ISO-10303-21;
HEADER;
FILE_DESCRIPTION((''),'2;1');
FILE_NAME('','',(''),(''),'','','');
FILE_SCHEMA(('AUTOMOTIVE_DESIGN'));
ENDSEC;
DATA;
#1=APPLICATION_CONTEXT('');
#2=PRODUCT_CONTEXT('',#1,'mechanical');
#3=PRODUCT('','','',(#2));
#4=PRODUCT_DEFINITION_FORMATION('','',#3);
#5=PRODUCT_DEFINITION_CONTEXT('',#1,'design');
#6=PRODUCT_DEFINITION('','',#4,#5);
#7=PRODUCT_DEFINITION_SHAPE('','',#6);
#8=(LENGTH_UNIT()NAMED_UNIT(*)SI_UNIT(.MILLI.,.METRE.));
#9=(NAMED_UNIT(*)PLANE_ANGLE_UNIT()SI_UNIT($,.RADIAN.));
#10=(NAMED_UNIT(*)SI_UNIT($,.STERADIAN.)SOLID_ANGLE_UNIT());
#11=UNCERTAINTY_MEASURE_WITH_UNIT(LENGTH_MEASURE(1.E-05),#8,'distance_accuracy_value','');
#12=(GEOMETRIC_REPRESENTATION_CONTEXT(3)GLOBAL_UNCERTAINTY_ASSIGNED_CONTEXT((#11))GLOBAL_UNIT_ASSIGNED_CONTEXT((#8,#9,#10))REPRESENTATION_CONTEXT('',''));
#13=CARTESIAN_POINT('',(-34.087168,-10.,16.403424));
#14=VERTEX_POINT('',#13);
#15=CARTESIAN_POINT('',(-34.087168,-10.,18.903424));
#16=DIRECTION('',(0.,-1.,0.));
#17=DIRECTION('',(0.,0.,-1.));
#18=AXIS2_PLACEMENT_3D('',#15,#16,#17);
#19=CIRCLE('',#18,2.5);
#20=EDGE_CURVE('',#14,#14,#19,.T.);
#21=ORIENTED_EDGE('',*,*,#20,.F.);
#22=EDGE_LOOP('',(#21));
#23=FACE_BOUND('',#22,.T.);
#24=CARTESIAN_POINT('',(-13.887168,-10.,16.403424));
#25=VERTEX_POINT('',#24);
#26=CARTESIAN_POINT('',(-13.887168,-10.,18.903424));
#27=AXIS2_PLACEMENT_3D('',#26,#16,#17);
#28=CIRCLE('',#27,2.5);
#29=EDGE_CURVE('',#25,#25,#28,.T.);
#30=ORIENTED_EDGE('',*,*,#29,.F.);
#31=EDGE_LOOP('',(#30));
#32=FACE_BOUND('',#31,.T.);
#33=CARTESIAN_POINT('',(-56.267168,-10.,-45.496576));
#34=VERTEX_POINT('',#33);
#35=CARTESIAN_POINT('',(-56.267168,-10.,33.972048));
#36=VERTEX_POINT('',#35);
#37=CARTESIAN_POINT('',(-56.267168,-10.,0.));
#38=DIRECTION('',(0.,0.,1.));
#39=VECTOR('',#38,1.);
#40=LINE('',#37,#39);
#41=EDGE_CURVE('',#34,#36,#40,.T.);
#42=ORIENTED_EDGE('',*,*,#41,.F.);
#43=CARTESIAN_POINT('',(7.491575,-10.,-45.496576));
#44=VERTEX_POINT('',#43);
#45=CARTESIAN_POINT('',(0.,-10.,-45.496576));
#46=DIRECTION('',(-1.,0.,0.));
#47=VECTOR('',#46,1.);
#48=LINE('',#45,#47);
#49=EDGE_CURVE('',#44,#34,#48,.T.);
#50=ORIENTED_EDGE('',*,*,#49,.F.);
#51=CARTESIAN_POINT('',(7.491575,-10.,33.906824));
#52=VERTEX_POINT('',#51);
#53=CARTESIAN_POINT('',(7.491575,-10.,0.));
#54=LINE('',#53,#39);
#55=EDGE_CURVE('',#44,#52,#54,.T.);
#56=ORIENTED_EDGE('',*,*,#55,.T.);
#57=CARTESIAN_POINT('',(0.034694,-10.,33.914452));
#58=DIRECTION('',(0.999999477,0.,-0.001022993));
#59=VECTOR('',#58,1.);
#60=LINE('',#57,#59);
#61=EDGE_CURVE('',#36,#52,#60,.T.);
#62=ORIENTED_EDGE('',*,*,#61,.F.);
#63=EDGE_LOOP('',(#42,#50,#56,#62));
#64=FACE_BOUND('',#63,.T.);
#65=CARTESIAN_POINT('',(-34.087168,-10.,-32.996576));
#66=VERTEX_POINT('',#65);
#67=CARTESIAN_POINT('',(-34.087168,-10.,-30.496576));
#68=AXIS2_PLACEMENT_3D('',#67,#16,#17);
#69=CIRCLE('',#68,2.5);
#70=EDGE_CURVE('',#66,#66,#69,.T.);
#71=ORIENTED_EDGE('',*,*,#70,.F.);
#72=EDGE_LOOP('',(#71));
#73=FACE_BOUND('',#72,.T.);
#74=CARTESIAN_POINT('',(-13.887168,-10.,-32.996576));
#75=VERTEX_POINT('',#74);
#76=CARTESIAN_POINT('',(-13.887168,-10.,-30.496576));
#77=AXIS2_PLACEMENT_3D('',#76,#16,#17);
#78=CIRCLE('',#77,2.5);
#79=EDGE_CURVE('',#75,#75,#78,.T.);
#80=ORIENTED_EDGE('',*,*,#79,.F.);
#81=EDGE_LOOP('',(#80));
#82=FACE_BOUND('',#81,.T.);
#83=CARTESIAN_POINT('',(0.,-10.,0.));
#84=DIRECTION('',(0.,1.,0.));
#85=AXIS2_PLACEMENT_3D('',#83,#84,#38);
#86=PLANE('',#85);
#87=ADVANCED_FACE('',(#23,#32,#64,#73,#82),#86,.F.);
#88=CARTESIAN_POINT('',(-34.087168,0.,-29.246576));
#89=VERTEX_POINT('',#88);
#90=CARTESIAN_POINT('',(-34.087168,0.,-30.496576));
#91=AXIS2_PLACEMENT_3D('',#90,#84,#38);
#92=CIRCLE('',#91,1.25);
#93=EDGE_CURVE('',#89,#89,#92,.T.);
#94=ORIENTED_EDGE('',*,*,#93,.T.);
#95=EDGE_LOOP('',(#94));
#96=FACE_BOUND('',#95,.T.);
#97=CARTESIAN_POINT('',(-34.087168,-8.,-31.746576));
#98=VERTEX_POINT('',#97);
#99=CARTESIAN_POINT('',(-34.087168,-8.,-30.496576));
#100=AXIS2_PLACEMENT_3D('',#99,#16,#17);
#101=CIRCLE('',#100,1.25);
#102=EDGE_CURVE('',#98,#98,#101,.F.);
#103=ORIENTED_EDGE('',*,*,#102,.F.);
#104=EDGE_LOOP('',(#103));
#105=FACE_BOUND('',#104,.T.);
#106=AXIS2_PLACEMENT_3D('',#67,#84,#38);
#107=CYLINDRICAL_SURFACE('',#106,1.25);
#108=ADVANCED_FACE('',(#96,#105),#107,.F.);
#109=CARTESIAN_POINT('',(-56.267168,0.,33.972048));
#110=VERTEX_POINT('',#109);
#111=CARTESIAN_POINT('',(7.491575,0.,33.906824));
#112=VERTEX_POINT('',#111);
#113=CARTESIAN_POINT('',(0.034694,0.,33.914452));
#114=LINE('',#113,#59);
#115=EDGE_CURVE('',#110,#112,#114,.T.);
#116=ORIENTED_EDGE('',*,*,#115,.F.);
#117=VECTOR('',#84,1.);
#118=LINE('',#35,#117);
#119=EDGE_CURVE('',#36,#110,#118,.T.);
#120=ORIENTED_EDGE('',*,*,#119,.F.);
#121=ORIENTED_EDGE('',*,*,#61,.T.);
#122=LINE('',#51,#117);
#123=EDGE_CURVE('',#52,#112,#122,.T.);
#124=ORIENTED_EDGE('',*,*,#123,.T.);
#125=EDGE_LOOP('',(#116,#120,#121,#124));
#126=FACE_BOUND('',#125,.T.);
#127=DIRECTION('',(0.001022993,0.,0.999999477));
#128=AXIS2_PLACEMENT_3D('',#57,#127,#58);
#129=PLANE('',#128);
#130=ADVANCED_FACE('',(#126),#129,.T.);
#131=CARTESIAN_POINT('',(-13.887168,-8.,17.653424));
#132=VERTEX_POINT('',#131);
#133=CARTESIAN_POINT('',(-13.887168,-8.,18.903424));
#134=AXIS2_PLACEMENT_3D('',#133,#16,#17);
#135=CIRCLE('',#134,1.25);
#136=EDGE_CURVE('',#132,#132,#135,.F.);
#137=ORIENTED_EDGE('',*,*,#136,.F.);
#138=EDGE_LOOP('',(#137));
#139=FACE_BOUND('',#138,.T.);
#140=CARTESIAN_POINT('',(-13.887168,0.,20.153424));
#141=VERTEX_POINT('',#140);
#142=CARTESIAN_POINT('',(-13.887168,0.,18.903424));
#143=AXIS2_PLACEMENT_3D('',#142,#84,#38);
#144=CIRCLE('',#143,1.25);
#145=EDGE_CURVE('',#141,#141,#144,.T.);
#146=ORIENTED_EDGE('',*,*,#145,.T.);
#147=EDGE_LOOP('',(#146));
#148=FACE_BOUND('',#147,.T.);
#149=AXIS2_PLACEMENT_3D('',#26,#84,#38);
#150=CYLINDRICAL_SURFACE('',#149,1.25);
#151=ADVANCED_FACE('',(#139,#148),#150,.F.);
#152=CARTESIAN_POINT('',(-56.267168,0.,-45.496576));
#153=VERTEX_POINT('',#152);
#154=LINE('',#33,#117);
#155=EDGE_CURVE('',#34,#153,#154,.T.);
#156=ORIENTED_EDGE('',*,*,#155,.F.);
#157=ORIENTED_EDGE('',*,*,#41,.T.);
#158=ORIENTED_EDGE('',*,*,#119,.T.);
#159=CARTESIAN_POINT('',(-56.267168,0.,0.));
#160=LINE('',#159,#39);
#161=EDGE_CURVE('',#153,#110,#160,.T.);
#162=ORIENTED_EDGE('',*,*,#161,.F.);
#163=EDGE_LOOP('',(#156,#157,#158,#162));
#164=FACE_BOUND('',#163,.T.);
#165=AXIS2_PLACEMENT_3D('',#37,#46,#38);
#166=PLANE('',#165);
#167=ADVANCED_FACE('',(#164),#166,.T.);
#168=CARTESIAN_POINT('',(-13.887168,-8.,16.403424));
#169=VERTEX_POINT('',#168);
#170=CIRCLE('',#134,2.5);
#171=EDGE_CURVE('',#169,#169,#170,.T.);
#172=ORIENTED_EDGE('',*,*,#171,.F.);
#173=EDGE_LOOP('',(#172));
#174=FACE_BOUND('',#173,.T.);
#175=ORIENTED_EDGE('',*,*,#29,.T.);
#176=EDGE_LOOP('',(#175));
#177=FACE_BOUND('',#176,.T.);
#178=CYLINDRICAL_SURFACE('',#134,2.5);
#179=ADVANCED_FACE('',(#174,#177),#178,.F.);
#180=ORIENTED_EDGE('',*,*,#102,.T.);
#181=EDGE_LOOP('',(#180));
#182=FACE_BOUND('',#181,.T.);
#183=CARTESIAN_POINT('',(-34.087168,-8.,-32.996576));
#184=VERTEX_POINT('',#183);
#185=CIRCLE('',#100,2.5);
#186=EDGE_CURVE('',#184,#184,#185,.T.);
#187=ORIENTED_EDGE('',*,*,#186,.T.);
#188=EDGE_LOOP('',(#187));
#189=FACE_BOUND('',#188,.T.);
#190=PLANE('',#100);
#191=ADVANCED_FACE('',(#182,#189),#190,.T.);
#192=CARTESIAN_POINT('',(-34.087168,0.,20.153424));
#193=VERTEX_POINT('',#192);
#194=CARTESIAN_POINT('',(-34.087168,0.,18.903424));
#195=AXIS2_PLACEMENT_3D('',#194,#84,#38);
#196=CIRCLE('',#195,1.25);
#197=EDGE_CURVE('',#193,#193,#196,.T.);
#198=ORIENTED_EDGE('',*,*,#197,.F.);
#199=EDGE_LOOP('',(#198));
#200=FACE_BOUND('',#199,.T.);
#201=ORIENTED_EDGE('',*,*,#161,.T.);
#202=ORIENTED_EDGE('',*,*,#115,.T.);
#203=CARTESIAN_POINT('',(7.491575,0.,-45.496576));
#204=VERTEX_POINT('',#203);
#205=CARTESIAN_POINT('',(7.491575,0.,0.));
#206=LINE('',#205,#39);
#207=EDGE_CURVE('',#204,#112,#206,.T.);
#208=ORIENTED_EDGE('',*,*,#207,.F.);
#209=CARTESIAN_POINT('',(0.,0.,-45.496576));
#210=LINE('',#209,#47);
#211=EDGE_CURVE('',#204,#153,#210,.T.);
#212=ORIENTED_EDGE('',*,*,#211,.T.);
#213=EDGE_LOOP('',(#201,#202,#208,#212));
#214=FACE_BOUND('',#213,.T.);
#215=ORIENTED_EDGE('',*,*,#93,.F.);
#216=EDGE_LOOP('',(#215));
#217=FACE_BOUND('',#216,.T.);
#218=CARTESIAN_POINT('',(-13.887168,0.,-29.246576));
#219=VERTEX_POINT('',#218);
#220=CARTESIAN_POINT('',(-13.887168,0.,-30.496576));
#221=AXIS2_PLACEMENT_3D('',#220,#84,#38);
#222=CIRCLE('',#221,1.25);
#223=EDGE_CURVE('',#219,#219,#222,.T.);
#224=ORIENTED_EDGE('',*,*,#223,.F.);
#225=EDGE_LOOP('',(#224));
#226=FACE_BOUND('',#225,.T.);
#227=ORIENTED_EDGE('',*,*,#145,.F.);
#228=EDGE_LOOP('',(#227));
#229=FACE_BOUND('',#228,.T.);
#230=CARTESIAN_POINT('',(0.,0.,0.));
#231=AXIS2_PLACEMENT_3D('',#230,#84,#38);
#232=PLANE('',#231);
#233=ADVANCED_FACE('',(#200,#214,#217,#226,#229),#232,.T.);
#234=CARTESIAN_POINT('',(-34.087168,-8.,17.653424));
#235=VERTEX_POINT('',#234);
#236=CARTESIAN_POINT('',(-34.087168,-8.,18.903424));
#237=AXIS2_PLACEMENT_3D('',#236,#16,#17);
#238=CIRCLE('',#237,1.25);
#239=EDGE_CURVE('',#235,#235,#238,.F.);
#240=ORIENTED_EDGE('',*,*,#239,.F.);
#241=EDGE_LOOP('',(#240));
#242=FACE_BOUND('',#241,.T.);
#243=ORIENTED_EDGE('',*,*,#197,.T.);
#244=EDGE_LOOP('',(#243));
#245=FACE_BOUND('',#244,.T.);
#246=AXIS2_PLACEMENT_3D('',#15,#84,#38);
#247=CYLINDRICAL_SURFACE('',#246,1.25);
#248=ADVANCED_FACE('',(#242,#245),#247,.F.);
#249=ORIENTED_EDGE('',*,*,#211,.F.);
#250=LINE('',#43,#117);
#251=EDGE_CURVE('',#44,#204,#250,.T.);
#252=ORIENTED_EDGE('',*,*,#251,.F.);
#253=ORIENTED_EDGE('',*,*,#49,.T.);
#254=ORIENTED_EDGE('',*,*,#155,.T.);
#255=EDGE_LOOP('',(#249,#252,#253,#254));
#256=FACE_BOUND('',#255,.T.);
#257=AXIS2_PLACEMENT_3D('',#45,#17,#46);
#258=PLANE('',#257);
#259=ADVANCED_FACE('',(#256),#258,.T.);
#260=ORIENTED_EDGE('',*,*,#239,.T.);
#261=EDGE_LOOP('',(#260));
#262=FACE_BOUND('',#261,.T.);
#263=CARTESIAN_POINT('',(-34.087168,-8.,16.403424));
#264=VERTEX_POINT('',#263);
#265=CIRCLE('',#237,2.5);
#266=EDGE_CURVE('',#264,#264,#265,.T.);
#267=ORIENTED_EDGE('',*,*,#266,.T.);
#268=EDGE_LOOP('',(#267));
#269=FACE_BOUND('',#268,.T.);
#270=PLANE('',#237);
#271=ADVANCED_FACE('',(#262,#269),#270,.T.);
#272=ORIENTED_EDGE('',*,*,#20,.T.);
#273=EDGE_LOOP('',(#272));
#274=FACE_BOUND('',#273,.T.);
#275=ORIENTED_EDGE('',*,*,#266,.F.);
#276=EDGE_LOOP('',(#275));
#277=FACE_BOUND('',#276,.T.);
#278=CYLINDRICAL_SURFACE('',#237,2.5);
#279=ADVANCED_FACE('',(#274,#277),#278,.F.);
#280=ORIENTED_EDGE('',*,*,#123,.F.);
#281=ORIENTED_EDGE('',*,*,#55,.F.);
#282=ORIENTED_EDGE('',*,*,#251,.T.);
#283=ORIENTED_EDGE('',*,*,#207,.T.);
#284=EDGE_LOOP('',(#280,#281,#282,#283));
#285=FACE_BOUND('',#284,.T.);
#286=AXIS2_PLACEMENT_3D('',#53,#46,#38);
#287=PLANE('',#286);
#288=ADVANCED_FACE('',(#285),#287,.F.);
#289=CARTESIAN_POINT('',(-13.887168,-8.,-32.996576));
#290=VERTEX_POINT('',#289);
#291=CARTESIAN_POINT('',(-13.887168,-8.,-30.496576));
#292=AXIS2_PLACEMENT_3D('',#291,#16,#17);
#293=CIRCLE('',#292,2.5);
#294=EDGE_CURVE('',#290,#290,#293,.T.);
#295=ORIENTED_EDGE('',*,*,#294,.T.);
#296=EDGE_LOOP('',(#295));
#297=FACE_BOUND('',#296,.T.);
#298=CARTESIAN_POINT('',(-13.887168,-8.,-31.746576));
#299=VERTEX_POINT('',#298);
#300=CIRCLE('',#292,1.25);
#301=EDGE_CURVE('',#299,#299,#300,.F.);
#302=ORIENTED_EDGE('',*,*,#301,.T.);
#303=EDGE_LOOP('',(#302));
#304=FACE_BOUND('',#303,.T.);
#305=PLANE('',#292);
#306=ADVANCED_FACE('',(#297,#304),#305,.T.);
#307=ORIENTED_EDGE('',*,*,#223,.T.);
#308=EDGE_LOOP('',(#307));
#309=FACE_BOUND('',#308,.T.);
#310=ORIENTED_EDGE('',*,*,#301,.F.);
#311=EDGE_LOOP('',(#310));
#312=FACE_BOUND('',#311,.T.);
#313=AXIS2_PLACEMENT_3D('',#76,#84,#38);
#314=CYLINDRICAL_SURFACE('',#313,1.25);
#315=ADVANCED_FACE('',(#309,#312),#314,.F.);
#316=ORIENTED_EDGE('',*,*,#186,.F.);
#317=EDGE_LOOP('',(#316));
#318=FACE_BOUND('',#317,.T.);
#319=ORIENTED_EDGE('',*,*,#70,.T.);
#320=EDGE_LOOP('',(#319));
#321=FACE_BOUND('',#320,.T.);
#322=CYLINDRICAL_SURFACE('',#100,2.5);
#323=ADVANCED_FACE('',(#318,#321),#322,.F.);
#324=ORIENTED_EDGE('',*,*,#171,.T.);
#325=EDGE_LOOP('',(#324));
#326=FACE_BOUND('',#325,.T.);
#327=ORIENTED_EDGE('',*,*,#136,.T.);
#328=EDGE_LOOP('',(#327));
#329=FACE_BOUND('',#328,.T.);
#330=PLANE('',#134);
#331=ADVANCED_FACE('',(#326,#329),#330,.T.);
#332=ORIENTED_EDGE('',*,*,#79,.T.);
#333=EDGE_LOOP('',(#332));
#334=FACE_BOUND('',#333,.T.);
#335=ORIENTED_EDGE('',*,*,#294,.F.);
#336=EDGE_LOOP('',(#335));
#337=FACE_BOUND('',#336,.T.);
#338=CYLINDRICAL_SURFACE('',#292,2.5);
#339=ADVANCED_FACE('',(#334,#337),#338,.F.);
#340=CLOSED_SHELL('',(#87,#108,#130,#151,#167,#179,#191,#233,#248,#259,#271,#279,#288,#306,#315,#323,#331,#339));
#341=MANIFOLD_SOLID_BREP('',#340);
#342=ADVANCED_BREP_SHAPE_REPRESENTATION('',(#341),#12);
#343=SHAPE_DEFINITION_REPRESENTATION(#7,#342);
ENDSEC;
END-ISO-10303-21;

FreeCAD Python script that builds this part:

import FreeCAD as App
import Part
import Sketcher

V = App.Vector
Q = App.Units.Quantity


def add_polygon(sketch, points):
    """Adds a closed chain of lines whose ends are joined by coincident constraints."""
    first, n = sketch.GeometryCount, len(points)
    for a, b in zip(points, points[1:] + points[:1]):
        sketch.addGeometry(Part.LineSegment(App.Vector(*a, 0), App.Vector(*b, 0)), False)
    for i in range(n):
        sketch.addConstraint(Sketcher.Constraint("Coincident", first + i, 2, first + (i + 1) % n, 1))

doc = App.newDocument("Part")
body = doc.addObject("PartDesign::Body", "Body")

# Sketch on XZ plane
sketch1 = body.newObject("Sketcher::SketchObject", "Sketch")
sketch1.AttachmentSupport = (doc.getObject("XZ_Plane"), [""])
sketch1.MapMode = "FlatFace"
add_polygon(sketch1, [(7.491575, -45.496576), (-56.267168, -45.496576), (-56.267168, 33.972048), (7.491575, 33.906824)])  # lines 0-3
sketch1.addGeometry(Part.Circle(V(-34.087168, 18.903424, 0), V(0, 0, 1), 1.25), False)  # 4
sketch1.addGeometry(Part.Circle(V(-13.887168, 18.903424, 0), V(0, 0, 1), 1.25), False)  # 5
sketch1.addGeometry(Part.Circle(V(-34.087168, -30.496576, 0), V(0, 0, 1), 1.25), False)  # 6
sketch1.addGeometry(Part.Circle(V(-13.887168, -30.496576, 0), V(0, 0, 1), 1.25), False)  # 7
sketch1.addConstraint([
    Sketcher.Constraint("Horizontal", 0),
    Sketcher.Constraint("Vertical", 1),
    Sketcher.Constraint("Vertical", 3),
    Sketcher.Constraint("Equal", 4, 5),
    Sketcher.Constraint("Equal", 5, 6),
    Sketcher.Constraint("Equal", 6, 7),
    Sketcher.Constraint("Horizontal", 4, 3, 5, 3),
    Sketcher.Constraint("Horizontal", 6, 3, 7, 3),
    Sketcher.Constraint("Vertical", 4, 3, 6, 3),
    Sketcher.Constraint("Vertical", 5, 3, 7, 3),
    Sketcher.Constraint("Diameter", 4, Q("2.5 mm")),
    Sketcher.Constraint("DistanceY", 0, 2, 6, 3, Q("15 mm")),
    Sketcher.Constraint("DistanceX", 4, 3, 5, 3, Q("20.2 mm")),
    Sketcher.Constraint("DistanceY", 6, 3, 4, 3, Q("49.4 mm")),
    Sketcher.Constraint("DistanceX", 0, 2, 6, 3, Q("22.18 mm")),
    Sketcher.Constraint("DistanceY", 3, 2, 3, 1, Q("79.4034 mm")),
    Sketcher.Constraint("DistanceX", 0, 2, 0, 1, Q("63.758743 mm")),
    Sketcher.Constraint("DistanceY", 1, 1, 1, 2, Q("79.468625 mm")),
    Sketcher.Constraint("DistanceX", 4, 3, -1, 1, Q("34.087168 mm")),
    Sketcher.Constraint("DistanceY", -1, 1, 1, 2, Q("33.972048 mm")),
])
pad1 = body.newObject("PartDesign::Pad", "Pad")
pad1.Profile = sketch1
pad1.Length = 10

# Sketch on XZ plane
sketch2 = body.newObject("Sketcher::SketchObject", "Sketch001")
sketch2.AttachmentSupport = (doc.getObject("XZ_Plane"), [""])
sketch2.MapMode = "FlatFace"
sketch2.AttachmentOffset = App.Placement(V(0, 0, 10), App.Rotation())
sketch2.addGeometry([
    Part.Circle(V(-13.887168, 18.903424, 0), V(0, 0, 1), 2.5),
    Part.Circle(V(-34.087168, 18.903424, 0), V(0, 0, 1), 2.5),
    Part.Circle(V(-13.887168, -30.496576, 0), V(0, 0, 1), 2.5),
    Part.Circle(V(-34.087168, -30.496576, 0), V(0, 0, 1), 2.5),
], False)
sketch2.addConstraint([
    Sketcher.Constraint("Equal", 0, 1),
    Sketcher.Constraint("Equal", 1, 2),
    Sketcher.Constraint("Equal", 2, 3),
    Sketcher.Constraint("Horizontal", 0, 3, 1, 3),
    Sketcher.Constraint("Horizontal", 2, 3, 3, 3),
    Sketcher.Constraint("Vertical", 0, 3, 2, 3),
    Sketcher.Constraint("Vertical", 1, 3, 3, 3),
    Sketcher.Constraint("Diameter", 0, Q("5 mm")),
    Sketcher.Constraint("DistanceX", 1, 3, 0, 3, Q("20.2 mm")),
    Sketcher.Constraint("DistanceY", 2, 3, 0, 3, Q("49.4 mm")),
    Sketcher.Constraint("DistanceX", 0, 3, -1, 1, Q("13.887168 mm")),
    Sketcher.Constraint("DistanceY", -1, 1, 0, 3, Q("18.903424 mm")),
])
pocket1 = body.newObject("PartDesign::Pocket", "Pocket")
pocket1.Profile = sketch2
pocket1.Length = 2

doc.recompute()
